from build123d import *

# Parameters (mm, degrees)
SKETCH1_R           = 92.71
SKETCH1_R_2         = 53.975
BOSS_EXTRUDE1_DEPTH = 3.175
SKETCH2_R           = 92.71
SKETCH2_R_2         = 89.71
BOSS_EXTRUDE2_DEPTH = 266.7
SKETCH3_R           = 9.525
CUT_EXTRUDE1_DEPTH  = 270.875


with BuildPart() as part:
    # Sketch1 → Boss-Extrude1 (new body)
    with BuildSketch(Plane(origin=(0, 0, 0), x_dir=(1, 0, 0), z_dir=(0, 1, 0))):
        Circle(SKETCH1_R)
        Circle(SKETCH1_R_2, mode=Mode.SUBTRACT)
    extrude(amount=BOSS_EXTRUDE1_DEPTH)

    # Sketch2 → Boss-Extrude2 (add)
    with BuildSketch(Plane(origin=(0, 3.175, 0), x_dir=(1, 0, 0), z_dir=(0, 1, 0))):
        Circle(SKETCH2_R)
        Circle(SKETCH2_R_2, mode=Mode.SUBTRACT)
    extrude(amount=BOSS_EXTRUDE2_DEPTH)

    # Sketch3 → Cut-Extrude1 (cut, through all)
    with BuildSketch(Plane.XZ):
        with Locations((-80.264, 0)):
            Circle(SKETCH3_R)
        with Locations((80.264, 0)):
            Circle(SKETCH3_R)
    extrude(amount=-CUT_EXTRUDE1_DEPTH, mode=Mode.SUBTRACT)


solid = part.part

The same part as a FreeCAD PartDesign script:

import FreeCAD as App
import Part
import Sketcher
Q = App.Units.Quantity

doc = App.newDocument("Part")
body = doc.addObject("PartDesign::Body", "Body")

sketch1 = body.newObject("Sketcher::SketchObject", "Sketch")
sketch1.AttachmentSupport = (doc.getObject("XZ_Plane"), [""])
sketch1.MapMode = "FlatFace"
sketch1.addGeometry(Part.Circle(App.Vector(0, 0, 0), App.Vector(0, 0, 1), 93), False)
sketch1.addGeometry(Part.Circle(App.Vector(0, 0, 0), App.Vector(0, 0, 1), 54), False)
sketch1.addConstraint(Sketcher.Constraint("Coincident", 0, 3, -1, 1))
sketch1.addConstraint(Sketcher.Constraint("Coincident", 1, 3, -1, 1))
sketch1.addConstraint(Sketcher.Constraint("Diameter", 0, Q("7.3 in")))
sketch1.addConstraint(Sketcher.Constraint("Diameter", 1, Q("4.25 in")))
pad1 = body.newObject("PartDesign::Pad", "Pad")
pad1.Profile = sketch1
pad1.Length = Q("0.125 in")
pad1.Reversed = True

sketch2 = body.newObject("Sketcher::SketchObject", "Sketch001")
sketch2.AttachmentSupport = (doc.getObject("XZ_Plane"), [""])
sketch2.MapMode = "FlatFace"
sketch2.AttachmentOffset = App.Placement(App.Vector(0, 0, -0.125 * 25.4), App.Rotation())
sketch2.addGeometry(Part.Circle(App.Vector(0, 0, 0), App.Vector(0, 0, 1), 93), False)
sketch2.addGeometry(Part.Circle(App.Vector(0, 0, 0), App.Vector(0, 0, 1), 90), False)
sketch2.addConstraint(Sketcher.Constraint("Coincident", 0, 3, -1, 1))
sketch2.addConstraint(Sketcher.Constraint("Coincident", 1, 3, -1, 1))
sketch2.addConstraint(Sketcher.Constraint("Diameter", 0, Q("7.3 in")))
sketch2.addConstraint(Sketcher.Constraint("Diameter", 1, 179.42))
pad2 = body.newObject("PartDesign::Pad", "Pad001")
pad2.Profile = sketch2
pad2.Length = Q("10.5 in")
pad2.Reversed = True

sketch3 = body.newObject("Sketcher::SketchObject", "Sketch002")
sketch3.AttachmentSupport = (doc.getObject("XZ_Plane"), [""])
sketch3.MapMode = "FlatFace"
sketch3.addGeometry(Part.Circle(App.Vector(-80, 0, 0), App.Vector(0, 0, 1), 10), False)
sketch3.addGeometry(Part.Circle(App.Vector(80, 0, 0), App.Vector(0, 0, 1), 10), False)
sketch3.addConstraint(Sketcher.Constraint("Equal", 0, 1))
sketch3.addConstraint(Sketcher.Constraint("Symmetric", 0, 3, 1, 3, -1, 1))
sketch3.addConstraint(Sketcher.Constraint("PointOnObject", 0, 3, -1))
sketch3.addConstraint(Sketcher.Constraint("Diameter", 0, Q("0.75 in")))
sketch3.addConstraint(Sketcher.Constraint("DistanceX", 0, 3, -1, 1, Q("3.16 in")))
pocket1 = body.newObject("PartDesign::Pocket", "Pocket")
pocket1.Profile = sketch3
pocket1.Type = "ThroughAll"

doc.recompute()
